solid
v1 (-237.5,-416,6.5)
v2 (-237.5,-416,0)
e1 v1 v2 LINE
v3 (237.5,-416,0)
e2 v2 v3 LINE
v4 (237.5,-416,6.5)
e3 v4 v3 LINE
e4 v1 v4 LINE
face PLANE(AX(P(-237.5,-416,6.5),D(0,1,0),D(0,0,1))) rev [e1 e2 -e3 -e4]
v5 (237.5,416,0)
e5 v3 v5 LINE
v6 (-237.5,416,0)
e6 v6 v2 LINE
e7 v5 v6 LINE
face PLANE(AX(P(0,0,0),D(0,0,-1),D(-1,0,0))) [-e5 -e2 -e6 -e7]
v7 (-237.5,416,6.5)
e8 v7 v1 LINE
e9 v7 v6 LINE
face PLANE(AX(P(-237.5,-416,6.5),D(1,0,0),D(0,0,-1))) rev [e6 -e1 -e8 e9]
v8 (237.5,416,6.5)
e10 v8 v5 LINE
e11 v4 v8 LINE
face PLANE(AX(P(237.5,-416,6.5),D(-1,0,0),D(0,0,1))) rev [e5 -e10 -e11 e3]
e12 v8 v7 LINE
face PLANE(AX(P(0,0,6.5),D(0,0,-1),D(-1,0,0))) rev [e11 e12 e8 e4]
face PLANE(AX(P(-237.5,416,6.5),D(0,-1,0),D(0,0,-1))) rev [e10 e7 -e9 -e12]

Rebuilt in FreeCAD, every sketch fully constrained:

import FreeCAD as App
import Part
import Sketcher


def add_polygon(sketch, points):
    """Adds a closed chain of lines whose ends are joined by coincident constraints."""
    first, n = sketch.GeometryCount, len(points)
    for a, b in zip(points, points[1:] + points[:1]):
        sketch.addGeometry(Part.LineSegment(App.Vector(*a, 0), App.Vector(*b, 0)), False)
    for i in range(n):
        sketch.addConstraint(Sketcher.Constraint("Coincident", first + i, 2, first + (i + 1) % n, 1))

doc = App.newDocument("Part")
params = doc.addObject("Spreadsheet::Sheet", "Params")
for row, (alias, value) in enumerate([
    ("sketch1_width", "475 mm"),
    ("sketch1_height", "832 mm"),
    ("pad1_length", "6.5 mm"),
], start=1):
    params.set(f"A{row}", alias)
    params.set(f"B{row}", "=" + value)
    params.setAlias(f"B{row}", alias)

body = doc.addObject("PartDesign::Body", "Body")

sketch1 = body.newObject("Sketcher::SketchObject", "Sketch")
sketch1.AttachmentSupport = (doc.getObject("XY_Plane"), [""])
sketch1.MapMode = "FlatFace"
add_polygon(sketch1, [(-237.5, 416), (-237.5, -416), (237.5, -416), (237.5, 416)])
sketch1.addConstraint([
    Sketcher.Constraint("Vertical", 0),
    Sketcher.Constraint("Horizontal", 1),
    Sketcher.Constraint("Vertical", 2),
    Sketcher.Constraint("Horizontal", 3),
    Sketcher.Constraint("Symmetric", 0, 2, 2, 2, -1, 1),
    Sketcher.Constraint("DistanceX", 1, 1, 1, 2, 475.0),
    Sketcher.Constraint("DistanceY", 0, 2, 0, 1, 832.0),
])
sketch1.setExpression("Constraints[9]", "Params.sketch1_width")
sketch1.setExpression("Constraints[10]", "Params.sketch1_height")
pad1 = body.newObject("PartDesign::Pad", "Pad")
pad1.Profile = sketch1
pad1.setExpression("Length", "Params.pad1_length")

doc.recompute()
